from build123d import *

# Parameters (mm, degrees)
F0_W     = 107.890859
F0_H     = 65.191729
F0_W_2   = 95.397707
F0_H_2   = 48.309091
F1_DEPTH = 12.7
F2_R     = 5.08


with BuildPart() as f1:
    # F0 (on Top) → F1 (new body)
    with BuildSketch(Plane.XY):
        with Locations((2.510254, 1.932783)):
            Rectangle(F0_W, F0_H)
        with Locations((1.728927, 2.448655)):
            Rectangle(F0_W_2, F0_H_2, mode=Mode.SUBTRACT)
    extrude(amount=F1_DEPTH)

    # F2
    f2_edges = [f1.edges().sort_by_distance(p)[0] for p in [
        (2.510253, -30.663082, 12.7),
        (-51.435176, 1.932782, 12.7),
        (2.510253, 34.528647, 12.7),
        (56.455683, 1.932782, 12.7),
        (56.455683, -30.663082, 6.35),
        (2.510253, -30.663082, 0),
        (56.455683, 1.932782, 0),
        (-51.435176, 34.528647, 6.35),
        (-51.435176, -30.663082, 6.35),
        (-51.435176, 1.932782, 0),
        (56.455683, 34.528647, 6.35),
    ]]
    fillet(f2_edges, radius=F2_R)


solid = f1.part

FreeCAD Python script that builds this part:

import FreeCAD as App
import Part
import Sketcher
Q = App.Units.Quantity


def edges_at(feature, points):
    """Names of the edges that pass closest to the given points."""
    edges = feature.Shape.Edges
    near = lambda p: min(range(len(edges)), key=lambda i: edges[i].distToShape(Part.Vertex(*p))[0])
    return sorted({f"Edge{near(p) + 1}" for p in points})

doc = App.newDocument("Part")
body = doc.addObject("PartDesign::Body", "Body")

# Sketch on XY plane
sketch1 = doc.addObject("Sketcher::SketchObject", "Sketch")
body.addObject(sketch1)
sketch1.AttachmentSupport = (doc.XY_Plane, [""])
sketch1.MapMode = "FlatFace"
sketch1.addGeometry([
    Part.LineSegment(App.Vector(-51, 35, 0), App.Vector(-51, -31, 0)),  # 0
    Part.LineSegment(App.Vector(-51, -31, 0), App.Vector(56, -31, 0)),  # 1
    Part.LineSegment(App.Vector(56, -31, 0), App.Vector(56, 35, 0)),  # 2
    Part.LineSegment(App.Vector(56, 35, 0), App.Vector(-51, 35, 0)),  # 3
    Part.LineSegment(App.Vector(49, -22, 0), App.Vector(-46, -22, 0)),  # 4
    Part.LineSegment(App.Vector(-46, -22, 0), App.Vector(-46, 27, 0)),  # 5
    Part.LineSegment(App.Vector(-46, 27, 0), App.Vector(49, 27, 0)),  # 6
    Part.LineSegment(App.Vector(49, 27, 0), App.Vector(49, -22, 0)),  # 7
], False)
sketch1.addConstraint([
    Sketcher.Constraint("Coincident", 0, 2, 1, 1),
    Sketcher.Constraint("Coincident", 1, 2, 2, 1),
    Sketcher.Constraint("Coincident", 2, 2, 3, 1),
    Sketcher.Constraint("Coincident", 3, 2, 0, 1),
    Sketcher.Constraint("Coincident", 4, 2, 5, 1),
    Sketcher.Constraint("Coincident", 5, 2, 6, 1),
    Sketcher.Constraint("Coincident", 6, 2, 7, 1),
    Sketcher.Constraint("Coincident", 7, 2, 4, 1),
    Sketcher.Constraint("Vertical", 0),
    Sketcher.Constraint("Horizontal", 1),
    Sketcher.Constraint("Vertical", 2),
    Sketcher.Constraint("Horizontal", 3),
    Sketcher.Constraint("Horizontal", 4),
    Sketcher.Constraint("Vertical", 5),
    Sketcher.Constraint("Horizontal", 6),
    Sketcher.Constraint("Vertical", 7),
    Sketcher.Constraint("DistanceX", 1, 1, 1, 2, Q("107.890859 mm")),
    Sketcher.Constraint("DistanceY", 0, 2, 0, 1, Q("65.191729 mm")),
    Sketcher.Constraint("DistanceY", 5, 1, 5, 2, Q("48.309091 mm")),
    Sketcher.Constraint("DistanceY", -1, 1, 5, 2, Q("26.6032 mm")),
    Sketcher.Constraint("DistanceX", 4, 2, 4, 1, Q("95.397707 mm")),
    Sketcher.Constraint("DistanceY", 0, 2, -1, 1, Q("30.663082 mm")),
    Sketcher.Constraint("DistanceX", -1, 1, 6, 2, Q("49.42778 mm")),
    Sketcher.Constraint("DistanceX", 0, 2, 4, 2, Q("5.465249 mm")),
])
pad1 = doc.addObject("PartDesign::Pad", "Pad")
body.addObject(pad1)
pad1.Profile = sketch1
pad1.Length = Q("0.5 in")
doc.recompute()

fillet = doc.addObject("PartDesign::Fillet", "Fillet")
body.addObject(fillet)
fillet.Base = (pad1, edges_at(pad1, [
    (2.51, -30.663, 12.7),
    (-51.435, 1.933, 12.7),
    (2.51, 34.529, 12.7),
    (56.456, 1.933, 12.7),
    (56.456, -30.663, 6.35),
    (2.51, -30.663, 0),
    (56.456, 1.933, 0),
    (-51.435, 34.529, 6.35),
    (-51.435, -30.663, 6.35),
    (-51.435, 1.933, 0),
    (56.456, 34.529, 6.35),
]))
fillet.Radius = Q("0.2 in")

doc.recompute()
